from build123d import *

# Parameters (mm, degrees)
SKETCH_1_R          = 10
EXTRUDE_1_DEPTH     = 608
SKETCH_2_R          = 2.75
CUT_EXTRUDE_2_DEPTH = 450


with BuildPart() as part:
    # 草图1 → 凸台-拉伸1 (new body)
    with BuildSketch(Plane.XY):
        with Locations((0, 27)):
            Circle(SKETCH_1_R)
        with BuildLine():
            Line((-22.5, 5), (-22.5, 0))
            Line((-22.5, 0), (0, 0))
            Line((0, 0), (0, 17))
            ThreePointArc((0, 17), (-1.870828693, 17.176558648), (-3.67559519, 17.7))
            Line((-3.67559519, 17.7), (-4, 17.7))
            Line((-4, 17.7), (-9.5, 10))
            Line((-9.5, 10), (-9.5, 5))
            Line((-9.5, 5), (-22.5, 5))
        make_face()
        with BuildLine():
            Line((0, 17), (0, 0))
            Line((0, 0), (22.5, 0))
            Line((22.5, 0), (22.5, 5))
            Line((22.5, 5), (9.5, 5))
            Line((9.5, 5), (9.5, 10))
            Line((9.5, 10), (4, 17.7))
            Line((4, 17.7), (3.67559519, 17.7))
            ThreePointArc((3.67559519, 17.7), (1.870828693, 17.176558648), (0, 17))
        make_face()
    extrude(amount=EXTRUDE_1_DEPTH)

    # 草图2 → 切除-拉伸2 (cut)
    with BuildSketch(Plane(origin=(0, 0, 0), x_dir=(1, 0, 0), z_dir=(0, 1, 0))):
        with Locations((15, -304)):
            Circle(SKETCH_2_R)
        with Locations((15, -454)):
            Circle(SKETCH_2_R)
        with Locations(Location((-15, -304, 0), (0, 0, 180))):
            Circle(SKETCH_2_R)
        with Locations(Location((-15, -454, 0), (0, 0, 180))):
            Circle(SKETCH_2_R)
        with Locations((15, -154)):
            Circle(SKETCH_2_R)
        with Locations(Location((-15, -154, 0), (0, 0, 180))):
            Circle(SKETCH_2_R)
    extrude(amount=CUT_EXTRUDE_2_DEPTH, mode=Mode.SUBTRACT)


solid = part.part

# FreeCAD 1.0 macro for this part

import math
import FreeCAD as App
import Part
import Sketcher
from FreeCAD import Vector
Q = App.Units.Quantity

doc = App.newDocument("Part")
body = doc.addObject("PartDesign::Body", "Body")

# Sketch on XY plane
sketch1 = body.newObject("Sketcher::SketchObject", "Sketch")
sketch1.AttachmentSupport = (doc.getObject("XY_Plane"), [""])
sketch1.MapMode = "FlatFace"
sketch1.addGeometry(Part.LineSegment(Vector(-3.68, 17.7, 0), Vector(-4, 17.7, 0)), False)
sketch1.addGeometry(Part.LineSegment(Vector(-4, 17.7, 0), Vector(-9.5, 10, 0)), False)
sketch1.addGeometry(Part.LineSegment(Vector(-9.5, 10, 0), Vector(-9.5, 5, 0)), False)
sketch1.addGeometry(Part.LineSegment(Vector(-9.5, 5, 0), Vector(-22.5, 5, 0)), False)
sketch1.addGeometry(Part.LineSegment(Vector(-22.5, 5, 0), Vector(-22.5, 0, 0)), False)
sketch1.addGeometry(Part.LineSegment(Vector(-22.5, 0, 0), Vector(22.5, 0, 0)), False)
sketch1.addGeometry(Part.LineSegment(Vector(22.5, 0, 0), Vector(22.5, 5, 0)), False)
sketch1.addGeometry(Part.LineSegment(Vector(22.5, 5, 0), Vector(9.5, 5, 0)), False)
sketch1.addGeometry(Part.LineSegment(Vector(9.5, 5, 0), Vector(9.5, 10, 0)), False)
sketch1.addGeometry(Part.LineSegment(Vector(9.5, 10, 0), Vector(4, 17.7, 0)), False)
sketch1.addGeometry(Part.LineSegment(Vector(4, 17.7, 0), Vector(3.68, 17.7, 0)), False)
sketch1.addGeometry(Part.ArcOfCircle(Part.Circle(Vector(0, 27, 0), Vector(0, 0, 1), 10), math.radians(-68), math.radians(248)), False)
sketch1.addConstraint(Sketcher.Constraint("Coincident", 0, 2, 1, 1))
sketch1.addConstraint(Sketcher.Constraint("Coincident", 1, 2, 2, 1))
sketch1.addConstraint(Sketcher.Constraint("Coincident", 2, 2, 3, 1))
sketch1.addConstraint(Sketcher.Constraint("Coincident", 3, 2, 4, 1))
sketch1.addConstraint(Sketcher.Constraint("Coincident", 4, 2, 5, 1))
sketch1.addConstraint(Sketcher.Constraint("Coincident", 5, 2, 6, 1))
sketch1.addConstraint(Sketcher.Constraint("Coincident", 6, 2, 7, 1))
sketch1.addConstraint(Sketcher.Constraint("Coincident", 7, 2, 8, 1))
sketch1.addConstraint(Sketcher.Constraint("Coincident", 8, 2, 9, 1))
sketch1.addConstraint(Sketcher.Constraint("Coincident", 9, 2, 10, 1))
sketch1.addConstraint(Sketcher.Constraint("Coincident", 10, 2, 11, 1))
sketch1.addConstraint(Sketcher.Constraint("Coincident", 11, 2, 0, 1))
sketch1.addConstraint(Sketcher.Constraint("Horizontal", 0))
sketch1.addConstraint(Sketcher.Constraint("Vertical", 2))
sketch1.addConstraint(Sketcher.Constraint("Horizontal", 3))
sketch1.addConstraint(Sketcher.Constraint("Vertical", 4))
sketch1.addConstraint(Sketcher.Constraint("Horizontal", 5))
sketch1.addConstraint(Sketcher.Constraint("Vertical", 6))
sketch1.addConstraint(Sketcher.Constraint("Horizontal", 7))
sketch1.addConstraint(Sketcher.Constraint("Vertical", 8))
sketch1.addConstraint(Sketcher.Constraint("Horizontal", 10))
sketch1.addConstraint(Sketcher.Constraint("Symmetric", 4, 2, 5, 2, -1, 1))
sketch1.addConstraint(Sketcher.Constraint("Symmetric", 2, 2, 7, 2, -2))
sketch1.addConstraint(Sketcher.Constraint("Symmetric", 0, 2, 9, 2, -2))
sketch1.addConstraint(Sketcher.Constraint("PointOnObject", 11, 3, -2))
sketch1.addConstraint(Sketcher.Constraint("Horizontal", 1, 2, 8, 2))
sketch1.addConstraint(Sketcher.Constraint("Equal", 2, 4))
sketch1.addConstraint(Sketcher.Constraint("Radius", 11, Q("10 mm")))
sketch1.addConstraint(Sketcher.Constraint("DistanceX", 3, 2, 3, 1, Q("13 mm")))
sketch1.addConstraint(Sketcher.Constraint("DistanceX", 5, 1, 5, 2, Q("45 mm")))
sketch1.addConstraint(Sketcher.Constraint("DistanceY", 2, 2, 2, 1, Q("5 mm")))
sketch1.addConstraint(Sketcher.Constraint("DistanceY", -1, 1, 11, 3, Q("27 mm")))
sketch1.addConstraint(Sketcher.Constraint("DistanceX", 0, 2, -1, 1, Q("4 mm")))
sketch1.addConstraint(Sketcher.Constraint("DistanceY", -1, 1, 0, 2, Q("17.7 mm")))
pad1 = body.newObject("PartDesign::Pad", "Pad")
pad1.Profile = sketch1
pad1.Length = 608

# Sketch on XZ plane
sketch2 = body.newObject("Sketcher::SketchObject", "Sketch001")
sketch2.AttachmentSupport = (doc.getObject("XZ_Plane"), [""])
sketch2.MapMode = "FlatFace"
sketch2.addGeometry(Part.Circle(Vector(15, 304, 0), Vector(0, 0, 1), 2.8), False)
sketch2.addGeometry(Part.Circle(Vector(15, 454, 0), Vector(0, 0, 1), 2.8), False)
sketch2.addGeometry(Part.Circle(Vector(-15, 304, 0), Vector(0, 0, 1), 2.8), False)
sketch2.addGeometry(Part.Circle(Vector(-15, 454, 0), Vector(0, 0, 1), 2.8), False)
sketch2.addGeometry(Part.Circle(Vector(15, 154, 0), Vector(0, 0, 1), 2.8), False)
sketch2.addGeometry(Part.Circle(Vector(-15, 154, 0), Vector(0, 0, 1), 2.8), False)
sketch2.addConstraint(Sketcher.Constraint("Equal", 0, 1))
sketch2.addConstraint(Sketcher.Constraint("Equal", 1, 2))
sketch2.addConstraint(Sketcher.Constraint("Equal", 2, 3))
sketch2.addConstraint(Sketcher.Constraint("Equal", 3, 4))
sketch2.addConstraint(Sketcher.Constraint("Equal", 4, 5))
sketch2.addConstraint(Sketcher.Constraint("Symmetric", 0, 3, 2, 3, -2))
sketch2.addConstraint(Sketcher.Constraint("Symmetric", 1, 3, 3, 3, -2))
sketch2.addConstraint(Sketcher.Constraint("Symmetric", 4, 3, 5, 3, -2))
sketch2.addConstraint(Sketcher.Constraint("Vertical", 0, 3, 1, 3))
sketch2.addConstraint(Sketcher.Constraint("Vertical", 1, 3, 4, 3))
sketch2.addConstraint(Sketcher.Constraint("Diameter", 0, Q("5.5 mm")))
sketch2.addConstraint(Sketcher.Constraint("DistanceX", -1, 1, 0, 3, Q("15 mm")))
sketch2.addConstraint(Sketcher.Constraint("DistanceY", -1, 1, 0, 3, Q("304 mm")))
sketch2.addConstraint(Sketcher.Constraint("DistanceY", -1, 1, 1, 3, Q("454 mm")))
sketch2.addConstraint(Sketcher.Constraint("DistanceY", -1, 1, 4, 3, Q("154 mm")))
pocket1 = body.newObject("PartDesign::Pocket", "Pocket")
pocket1.Profile = sketch2
pocket1.Length = 450

doc.recompute()
